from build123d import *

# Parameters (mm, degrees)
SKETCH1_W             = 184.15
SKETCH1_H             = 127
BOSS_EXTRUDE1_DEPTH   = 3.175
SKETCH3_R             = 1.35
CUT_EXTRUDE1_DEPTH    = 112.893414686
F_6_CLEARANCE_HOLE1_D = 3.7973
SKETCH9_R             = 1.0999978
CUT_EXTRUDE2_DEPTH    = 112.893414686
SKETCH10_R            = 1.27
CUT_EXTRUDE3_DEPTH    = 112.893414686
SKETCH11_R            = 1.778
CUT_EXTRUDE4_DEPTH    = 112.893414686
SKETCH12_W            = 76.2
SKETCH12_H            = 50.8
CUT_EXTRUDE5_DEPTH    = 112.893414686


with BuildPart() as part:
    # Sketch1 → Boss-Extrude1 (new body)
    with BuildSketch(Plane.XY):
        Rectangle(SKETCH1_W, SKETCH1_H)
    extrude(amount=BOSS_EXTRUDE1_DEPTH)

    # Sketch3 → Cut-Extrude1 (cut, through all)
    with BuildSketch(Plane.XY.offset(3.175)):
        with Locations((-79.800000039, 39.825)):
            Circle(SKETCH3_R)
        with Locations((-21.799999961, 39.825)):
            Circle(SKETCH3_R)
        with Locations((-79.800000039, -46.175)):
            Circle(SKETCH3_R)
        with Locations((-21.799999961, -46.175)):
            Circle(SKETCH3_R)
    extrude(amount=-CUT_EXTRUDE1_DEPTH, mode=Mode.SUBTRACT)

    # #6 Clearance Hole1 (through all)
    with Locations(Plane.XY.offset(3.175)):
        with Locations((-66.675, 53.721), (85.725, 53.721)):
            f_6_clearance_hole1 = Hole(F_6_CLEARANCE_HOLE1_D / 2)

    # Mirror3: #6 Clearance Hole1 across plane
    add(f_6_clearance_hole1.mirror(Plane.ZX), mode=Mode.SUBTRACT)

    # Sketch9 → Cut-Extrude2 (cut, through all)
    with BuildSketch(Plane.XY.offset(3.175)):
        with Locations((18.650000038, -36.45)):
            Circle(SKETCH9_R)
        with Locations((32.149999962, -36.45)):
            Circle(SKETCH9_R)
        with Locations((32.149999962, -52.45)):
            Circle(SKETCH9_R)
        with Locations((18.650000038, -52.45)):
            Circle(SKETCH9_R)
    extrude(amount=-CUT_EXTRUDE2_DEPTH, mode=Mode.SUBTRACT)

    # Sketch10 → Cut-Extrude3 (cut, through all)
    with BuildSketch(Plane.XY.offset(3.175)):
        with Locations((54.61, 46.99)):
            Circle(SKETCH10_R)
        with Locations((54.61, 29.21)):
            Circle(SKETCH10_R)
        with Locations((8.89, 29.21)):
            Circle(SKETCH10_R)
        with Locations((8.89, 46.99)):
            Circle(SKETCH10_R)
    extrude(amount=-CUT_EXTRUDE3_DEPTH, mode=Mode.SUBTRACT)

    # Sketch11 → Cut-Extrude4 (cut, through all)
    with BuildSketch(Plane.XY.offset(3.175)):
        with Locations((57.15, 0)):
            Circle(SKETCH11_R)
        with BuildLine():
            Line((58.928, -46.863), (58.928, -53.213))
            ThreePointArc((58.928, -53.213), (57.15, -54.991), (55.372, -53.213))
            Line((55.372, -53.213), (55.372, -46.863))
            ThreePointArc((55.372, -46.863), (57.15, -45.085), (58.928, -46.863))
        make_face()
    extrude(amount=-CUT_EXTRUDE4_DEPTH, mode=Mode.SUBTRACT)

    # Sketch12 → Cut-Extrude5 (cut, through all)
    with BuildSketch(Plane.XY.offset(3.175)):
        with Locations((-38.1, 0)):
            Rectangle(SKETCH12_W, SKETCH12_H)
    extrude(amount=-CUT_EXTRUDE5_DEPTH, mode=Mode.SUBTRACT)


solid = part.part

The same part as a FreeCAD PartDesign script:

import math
import FreeCAD as App
import Part
import Sketcher
Q = App.Units.Quantity


def add_polygon(sketch, points):
    """Adds a closed chain of lines whose ends are joined by coincident constraints."""
    first, n = sketch.GeometryCount, len(points)
    for a, b in zip(points, points[1:] + points[:1]):
        sketch.addGeometry(Part.LineSegment(App.Vector(*a, 0), App.Vector(*b, 0)), False)
    for i in range(n):
        sketch.addConstraint(Sketcher.Constraint("Coincident", first + i, 2, first + (i + 1) % n, 1))

doc = App.newDocument("Part")
params = doc.addObject("Spreadsheet::Sheet", "Params")
for row, (alias, value) in enumerate([
    ("sketch1_height", "5 in"),
    ("sketch1_width", "7.25 in"),
    ("pad1_length", "0.125 in"),
    ("hole_diameter", "0.1495 in"),
    ("sketch5_diameter", "0.1 in"),
    ("sketch6_diameter", "0.14 in"),
    ("sketch6_height", "0.25 in"),
    ("sketch7_width", "3 in"),
    ("sketch7_height", "2 in"),
], start=1):
    params.set(f"A{row}", alias)
    params.set(f"B{row}", "=" + value)
    params.setAlias(f"B{row}", alias)

body = doc.addObject("PartDesign::Body", "Body")

sketch1 = body.newObject("Sketcher::SketchObject", "Sketch")
sketch1.AttachmentSupport = (doc.getObject("XY_Plane"), [""])
sketch1.MapMode = "FlatFace"
add_polygon(sketch1, [(-92, 64), (-92, -64), (92, -64), (92, 64)])
sketch1.addConstraint([
    Sketcher.Constraint("Vertical", 0),
    Sketcher.Constraint("Horizontal", 1),
    Sketcher.Constraint("Vertical", 2),
    Sketcher.Constraint("Horizontal", 3),
    Sketcher.Constraint("Symmetric", 0, 2, 2, 2, -1, 1),
    Sketcher.Constraint("DistanceY", 0, 2, 0, 1, Q("5 in")),
    Sketcher.Constraint("DistanceX", 1, 1, 1, 2, Q("7.25 in")),
])
sketch1.setExpression("Constraints[9]", "Params.sketch1_height")
sketch1.setExpression("Constraints[10]", "Params.sketch1_width")
pad1 = body.newObject("PartDesign::Pad", "Pad")
pad1.Profile = sketch1
pad1.setExpression("Length", "Params.pad1_length")

sketch2 = body.newObject("Sketcher::SketchObject", "Sketch001")
sketch2.AttachmentSupport = (doc.getObject("XY_Plane"), [""])
sketch2.MapMode = "FlatFace"
sketch2.AttachmentOffset = App.Placement(App.Vector(0, 0, 0.125 * 25.4), App.Rotation())
sketch2.addGeometry([
    Part.Circle(App.Vector(-79.8, 39.8, 0), App.Vector(0, 0, 1), 1.4),
    Part.Circle(App.Vector(-21.8, 39.8, 0), App.Vector(0, 0, 1), 1.4),
    Part.Circle(App.Vector(-79.8, -46.2, 0), App.Vector(0, 0, 1), 1.4),
    Part.Circle(App.Vector(-21.8, -46.2, 0), App.Vector(0, 0, 1), 1.4),
], False)
sketch2.addConstraint([
    Sketcher.Constraint("Equal", 0, 1),
    Sketcher.Constraint("Equal", 1, 2),
    Sketcher.Constraint("Equal", 2, 3),
    Sketcher.Constraint("Horizontal", 0, 3, 1, 3),
    Sketcher.Constraint("Horizontal", 2, 3, 3, 3),
    Sketcher.Constraint("Vertical", 0, 3, 2, 3),
    Sketcher.Constraint("Vertical", 1, 3, 3, 3),
    Sketcher.Constraint("Diameter", 0, 2.7),
    Sketcher.Constraint("DistanceX", 0, 3, -1, 1, 79.8),
    Sketcher.Constraint("DistanceY", -1, 1, 0, 3, 39.825),
    Sketcher.Constraint("DistanceX", 1, 3, -1, 1, 21.8),
    Sketcher.Constraint("DistanceY", 2, 3, -1, 1, 46.175),
])
pocket1 = body.newObject("PartDesign::Pocket", "Pocket")
pocket1.Profile = sketch2
pocket1.Type = "ThroughAll"

sketch3 = body.newObject("Sketcher::SketchObject", "Sketch002")
sketch3.AttachmentSupport = (doc.getObject("XY_Plane"), [""])
sketch3.MapMode = "FlatFace"
sketch3.AttachmentOffset = App.Placement(App.Vector(0, 0, 0.125 * 25.4), App.Rotation())
sketch3.addGeometry([
    Part.Circle(App.Vector(-66.7, 53.7, 0), App.Vector(0, 0, 1), 1.9),
    Part.Circle(App.Vector(85.7, 53.7, 0), App.Vector(0, 0, 1), 1.9),
], False)
sketch3.addConstraint([
    Sketcher.Constraint("Equal", 0, 1),
    Sketcher.Constraint("Horizontal", 0, 3, 1, 3),
    Sketcher.Constraint("DistanceX", 0, 3, 1, 3, Q("6 in")),
    Sketcher.Constraint("Diameter", 0, Q("0.1495 in")),
    Sketcher.Constraint("DistanceX", 0, 3, -1, 1, Q("2.625 in")),
    Sketcher.Constraint("DistanceY", -1, 1, 0, 3, Q("2.115 in")),
])
doc.recompute()
hole = body.newObject("PartDesign::Hole", "Hole")
hole.Profile = sketch3
hole.ThreadType = "None"
hole.setExpression("Diameter", "Params.hole_diameter")
hole.DepthType = "ThroughAll"
doc.recompute()

mirrored = body.newObject("PartDesign::Mirrored", "Mirrored")
mirrored.Originals = [hole]
mirrored.MirrorPlane = (doc.getObject("XZ_Plane"), [""])
body.Tip = mirrored

sketch4 = body.newObject("Sketcher::SketchObject", "Sketch003")
sketch4.AttachmentSupport = (doc.getObject("XY_Plane"), [""])
sketch4.MapMode = "FlatFace"
sketch4.AttachmentOffset = App.Placement(App.Vector(0, 0, 0.125 * 25.4), App.Rotation())
sketch4.addGeometry([
    Part.Circle(App.Vector(18.7, -36.5, 0), App.Vector(0, 0, 1), 1.1),
    Part.Circle(App.Vector(32.1, -36.5, 0), App.Vector(0, 0, 1), 1.1),
    Part.Circle(App.Vector(32.1, -52.5, 0), App.Vector(0, 0, 1), 1.1),
    Part.Circle(App.Vector(18.7, -52.5, 0), App.Vector(0, 0, 1), 1.1),
], False)
sketch4.addConstraint([
    Sketcher.Constraint("Equal", 0, 1),
    Sketcher.Constraint("Equal", 1, 2),
    Sketcher.Constraint("Equal", 2, 3),
    Sketcher.Constraint("Horizontal", 0, 3, 1, 3),
    Sketcher.Constraint("Horizontal", 2, 3, 3, 3),
    Sketcher.Constraint("Vertical", 1, 3, 2, 3),
    Sketcher.Constraint("Vertical", 0, 3, 3, 3),
    Sketcher.Constraint("Diameter", 0, 2.199996),
    Sketcher.Constraint("DistanceX", -1, 1, 0, 3, 18.65),
    Sketcher.Constraint("DistanceY", 0, 3, -1, 1, 36.45),
    Sketcher.Constraint("DistanceX", -1, 1, 1, 3, 32.15),
    Sketcher.Constraint("DistanceY", 2, 3, -1, 1, 52.45),
])
pocket2 = body.newObject("PartDesign::Pocket", "Pocket001")
pocket2.Profile = sketch4
pocket2.Type = "ThroughAll"

sketch5 = body.newObject("Sketcher::SketchObject", "Sketch004")
sketch5.AttachmentSupport = (doc.getObject("XY_Plane"), [""])
sketch5.MapMode = "FlatFace"
sketch5.AttachmentOffset = App.Placement(App.Vector(0, 0, 0.125 * 25.4), App.Rotation())
sketch5.addGeometry([
    Part.Circle(App.Vector(54.6, 47, 0), App.Vector(0, 0, 1), 1.3),
    Part.Circle(App.Vector(54.6, 29.2, 0), App.Vector(0, 0, 1), 1.3),
    Part.Circle(App.Vector(8.9, 29.2, 0), App.Vector(0, 0, 1), 1.3),
    Part.Circle(App.Vector(8.9, 47, 0), App.Vector(0, 0, 1), 1.3),
], False)
sketch5.addConstraint([
    Sketcher.Constraint("Equal", 0, 1),
    Sketcher.Constraint("Equal", 1, 2),
    Sketcher.Constraint("Equal", 2, 3),
    Sketcher.Constraint("Horizontal", 1, 3, 2, 3),
    Sketcher.Constraint("Horizontal", 0, 3, 3, 3),
    Sketcher.Constraint("Vertical", 0, 3, 1, 3),
    Sketcher.Constraint("Vertical", 2, 3, 3, 3),
    Sketcher.Constraint("Diameter", 0, Q("0.1 in")),
    Sketcher.Constraint("DistanceY", 1, 3, 0, 3, Q("0.7 in")),
    Sketcher.Constraint("DistanceX", 2, 3, 1, 3, Q("1.8 in")),
    Sketcher.Constraint("DistanceX", -1, 1, 0, 3, Q("2.15 in")),
    Sketcher.Constraint("DistanceY", -1, 1, 0, 3, Q("1.85 in")),
])
sketch5.setExpression("Constraints[7]", "Params.sketch5_diameter")
pocket3 = body.newObject("PartDesign::Pocket", "Pocket002")
pocket3.Profile = sketch5
pocket3.Type = "ThroughAll"

sketch6 = body.newObject("Sketcher::SketchObject", "Sketch005")
sketch6.AttachmentSupport = (doc.getObject("XY_Plane"), [""])
sketch6.MapMode = "FlatFace"
sketch6.AttachmentOffset = App.Placement(App.Vector(0, 0, 0.125 * 25.4), App.Rotation())
sketch6.addGeometry([
    Part.Circle(App.Vector(57.1, 0, 0), App.Vector(0, 0, 1), 1.8),
    Part.LineSegment(App.Vector(58.9, -53.2, 0), App.Vector(58.9, -46.9, 0)),
    Part.ArcOfCircle(Part.Circle(App.Vector(57.1, -46.9, 0), App.Vector(0, 0, 1), 1.8), math.radians(0), math.radians(180)),
    Part.LineSegment(App.Vector(55.4, -46.9, 0), App.Vector(55.4, -53.2, 0)),
    Part.ArcOfCircle(Part.Circle(App.Vector(57.1, -53.2, 0), App.Vector(0, 0, 1), 1.8), math.radians(180), math.radians(360)),
], False)
sketch6.addConstraint([
    Sketcher.Constraint("Tangent", 1, 2, 2, 1),
    Sketcher.Constraint("Tangent", 2, 2, 3, 1),
    Sketcher.Constraint("Tangent", 3, 2, 4, 1),
    Sketcher.Constraint("Tangent", 4, 2, 1, 1),
    Sketcher.Constraint("Vertical", 1),
    Sketcher.Constraint("Vertical", 3),
    Sketcher.Constraint("Equal", 0, 2),
    Sketcher.Constraint("PointOnObject", 0, 3, -1),
    Sketcher.Constraint("Vertical", 0, 3, 2, 3),
    Sketcher.Constraint("Diameter", 0, Q("0.14 in")),
    Sketcher.Constraint("DistanceY", 1, 1, 1, 2, Q("0.25 in")),
    Sketcher.Constraint("DistanceX", -1, 1, 0, 3, Q("2.25 in")),
    Sketcher.Constraint("DistanceY", 2, 3, -1, 1, Q("1.845 in")),
])
sketch6.setExpression("Constraints[9]", "Params.sketch6_diameter")
sketch6.setExpression("Constraints[10]", "Params.sketch6_height")
pocket4 = body.newObject("PartDesign::Pocket", "Pocket003")
pocket4.Profile = sketch6
pocket4.Type = "ThroughAll"

sketch7 = body.newObject("Sketcher::SketchObject", "Sketch006")
sketch7.AttachmentSupport = (doc.getObject("XY_Plane"), [""])
sketch7.MapMode = "FlatFace"
sketch7.AttachmentOffset = App.Placement(App.Vector(0, 0, 0.125 * 25.4), App.Rotation())
add_polygon(sketch7, [(-76, 25), (-76, -25), (0, -25), (0, 25)])
sketch7.addConstraint([
    Sketcher.Constraint("Vertical", 0),
    Sketcher.Constraint("Horizontal", 1),
    Sketcher.Constraint("Vertical", 2),
    Sketcher.Constraint("Horizontal", 3),
    Sketcher.Constraint("Symmetric", 1, 2, 2, 2, -1, 1),
    Sketcher.Constraint("DistanceX", 1, 1, 1, 2, Q("3 in")),
    Sketcher.Constraint("DistanceY", 0, 2, 0, 1, Q("2 in")),
])
sketch7.setExpression("Constraints[9]", "Params.sketch7_width")
sketch7.setExpression("Constraints[10]", "Params.sketch7_height")
pocket5 = body.newObject("PartDesign::Pocket", "Pocket004")
pocket5.Profile = sketch7
pocket5.Type = "ThroughAll"

doc.recompute()
